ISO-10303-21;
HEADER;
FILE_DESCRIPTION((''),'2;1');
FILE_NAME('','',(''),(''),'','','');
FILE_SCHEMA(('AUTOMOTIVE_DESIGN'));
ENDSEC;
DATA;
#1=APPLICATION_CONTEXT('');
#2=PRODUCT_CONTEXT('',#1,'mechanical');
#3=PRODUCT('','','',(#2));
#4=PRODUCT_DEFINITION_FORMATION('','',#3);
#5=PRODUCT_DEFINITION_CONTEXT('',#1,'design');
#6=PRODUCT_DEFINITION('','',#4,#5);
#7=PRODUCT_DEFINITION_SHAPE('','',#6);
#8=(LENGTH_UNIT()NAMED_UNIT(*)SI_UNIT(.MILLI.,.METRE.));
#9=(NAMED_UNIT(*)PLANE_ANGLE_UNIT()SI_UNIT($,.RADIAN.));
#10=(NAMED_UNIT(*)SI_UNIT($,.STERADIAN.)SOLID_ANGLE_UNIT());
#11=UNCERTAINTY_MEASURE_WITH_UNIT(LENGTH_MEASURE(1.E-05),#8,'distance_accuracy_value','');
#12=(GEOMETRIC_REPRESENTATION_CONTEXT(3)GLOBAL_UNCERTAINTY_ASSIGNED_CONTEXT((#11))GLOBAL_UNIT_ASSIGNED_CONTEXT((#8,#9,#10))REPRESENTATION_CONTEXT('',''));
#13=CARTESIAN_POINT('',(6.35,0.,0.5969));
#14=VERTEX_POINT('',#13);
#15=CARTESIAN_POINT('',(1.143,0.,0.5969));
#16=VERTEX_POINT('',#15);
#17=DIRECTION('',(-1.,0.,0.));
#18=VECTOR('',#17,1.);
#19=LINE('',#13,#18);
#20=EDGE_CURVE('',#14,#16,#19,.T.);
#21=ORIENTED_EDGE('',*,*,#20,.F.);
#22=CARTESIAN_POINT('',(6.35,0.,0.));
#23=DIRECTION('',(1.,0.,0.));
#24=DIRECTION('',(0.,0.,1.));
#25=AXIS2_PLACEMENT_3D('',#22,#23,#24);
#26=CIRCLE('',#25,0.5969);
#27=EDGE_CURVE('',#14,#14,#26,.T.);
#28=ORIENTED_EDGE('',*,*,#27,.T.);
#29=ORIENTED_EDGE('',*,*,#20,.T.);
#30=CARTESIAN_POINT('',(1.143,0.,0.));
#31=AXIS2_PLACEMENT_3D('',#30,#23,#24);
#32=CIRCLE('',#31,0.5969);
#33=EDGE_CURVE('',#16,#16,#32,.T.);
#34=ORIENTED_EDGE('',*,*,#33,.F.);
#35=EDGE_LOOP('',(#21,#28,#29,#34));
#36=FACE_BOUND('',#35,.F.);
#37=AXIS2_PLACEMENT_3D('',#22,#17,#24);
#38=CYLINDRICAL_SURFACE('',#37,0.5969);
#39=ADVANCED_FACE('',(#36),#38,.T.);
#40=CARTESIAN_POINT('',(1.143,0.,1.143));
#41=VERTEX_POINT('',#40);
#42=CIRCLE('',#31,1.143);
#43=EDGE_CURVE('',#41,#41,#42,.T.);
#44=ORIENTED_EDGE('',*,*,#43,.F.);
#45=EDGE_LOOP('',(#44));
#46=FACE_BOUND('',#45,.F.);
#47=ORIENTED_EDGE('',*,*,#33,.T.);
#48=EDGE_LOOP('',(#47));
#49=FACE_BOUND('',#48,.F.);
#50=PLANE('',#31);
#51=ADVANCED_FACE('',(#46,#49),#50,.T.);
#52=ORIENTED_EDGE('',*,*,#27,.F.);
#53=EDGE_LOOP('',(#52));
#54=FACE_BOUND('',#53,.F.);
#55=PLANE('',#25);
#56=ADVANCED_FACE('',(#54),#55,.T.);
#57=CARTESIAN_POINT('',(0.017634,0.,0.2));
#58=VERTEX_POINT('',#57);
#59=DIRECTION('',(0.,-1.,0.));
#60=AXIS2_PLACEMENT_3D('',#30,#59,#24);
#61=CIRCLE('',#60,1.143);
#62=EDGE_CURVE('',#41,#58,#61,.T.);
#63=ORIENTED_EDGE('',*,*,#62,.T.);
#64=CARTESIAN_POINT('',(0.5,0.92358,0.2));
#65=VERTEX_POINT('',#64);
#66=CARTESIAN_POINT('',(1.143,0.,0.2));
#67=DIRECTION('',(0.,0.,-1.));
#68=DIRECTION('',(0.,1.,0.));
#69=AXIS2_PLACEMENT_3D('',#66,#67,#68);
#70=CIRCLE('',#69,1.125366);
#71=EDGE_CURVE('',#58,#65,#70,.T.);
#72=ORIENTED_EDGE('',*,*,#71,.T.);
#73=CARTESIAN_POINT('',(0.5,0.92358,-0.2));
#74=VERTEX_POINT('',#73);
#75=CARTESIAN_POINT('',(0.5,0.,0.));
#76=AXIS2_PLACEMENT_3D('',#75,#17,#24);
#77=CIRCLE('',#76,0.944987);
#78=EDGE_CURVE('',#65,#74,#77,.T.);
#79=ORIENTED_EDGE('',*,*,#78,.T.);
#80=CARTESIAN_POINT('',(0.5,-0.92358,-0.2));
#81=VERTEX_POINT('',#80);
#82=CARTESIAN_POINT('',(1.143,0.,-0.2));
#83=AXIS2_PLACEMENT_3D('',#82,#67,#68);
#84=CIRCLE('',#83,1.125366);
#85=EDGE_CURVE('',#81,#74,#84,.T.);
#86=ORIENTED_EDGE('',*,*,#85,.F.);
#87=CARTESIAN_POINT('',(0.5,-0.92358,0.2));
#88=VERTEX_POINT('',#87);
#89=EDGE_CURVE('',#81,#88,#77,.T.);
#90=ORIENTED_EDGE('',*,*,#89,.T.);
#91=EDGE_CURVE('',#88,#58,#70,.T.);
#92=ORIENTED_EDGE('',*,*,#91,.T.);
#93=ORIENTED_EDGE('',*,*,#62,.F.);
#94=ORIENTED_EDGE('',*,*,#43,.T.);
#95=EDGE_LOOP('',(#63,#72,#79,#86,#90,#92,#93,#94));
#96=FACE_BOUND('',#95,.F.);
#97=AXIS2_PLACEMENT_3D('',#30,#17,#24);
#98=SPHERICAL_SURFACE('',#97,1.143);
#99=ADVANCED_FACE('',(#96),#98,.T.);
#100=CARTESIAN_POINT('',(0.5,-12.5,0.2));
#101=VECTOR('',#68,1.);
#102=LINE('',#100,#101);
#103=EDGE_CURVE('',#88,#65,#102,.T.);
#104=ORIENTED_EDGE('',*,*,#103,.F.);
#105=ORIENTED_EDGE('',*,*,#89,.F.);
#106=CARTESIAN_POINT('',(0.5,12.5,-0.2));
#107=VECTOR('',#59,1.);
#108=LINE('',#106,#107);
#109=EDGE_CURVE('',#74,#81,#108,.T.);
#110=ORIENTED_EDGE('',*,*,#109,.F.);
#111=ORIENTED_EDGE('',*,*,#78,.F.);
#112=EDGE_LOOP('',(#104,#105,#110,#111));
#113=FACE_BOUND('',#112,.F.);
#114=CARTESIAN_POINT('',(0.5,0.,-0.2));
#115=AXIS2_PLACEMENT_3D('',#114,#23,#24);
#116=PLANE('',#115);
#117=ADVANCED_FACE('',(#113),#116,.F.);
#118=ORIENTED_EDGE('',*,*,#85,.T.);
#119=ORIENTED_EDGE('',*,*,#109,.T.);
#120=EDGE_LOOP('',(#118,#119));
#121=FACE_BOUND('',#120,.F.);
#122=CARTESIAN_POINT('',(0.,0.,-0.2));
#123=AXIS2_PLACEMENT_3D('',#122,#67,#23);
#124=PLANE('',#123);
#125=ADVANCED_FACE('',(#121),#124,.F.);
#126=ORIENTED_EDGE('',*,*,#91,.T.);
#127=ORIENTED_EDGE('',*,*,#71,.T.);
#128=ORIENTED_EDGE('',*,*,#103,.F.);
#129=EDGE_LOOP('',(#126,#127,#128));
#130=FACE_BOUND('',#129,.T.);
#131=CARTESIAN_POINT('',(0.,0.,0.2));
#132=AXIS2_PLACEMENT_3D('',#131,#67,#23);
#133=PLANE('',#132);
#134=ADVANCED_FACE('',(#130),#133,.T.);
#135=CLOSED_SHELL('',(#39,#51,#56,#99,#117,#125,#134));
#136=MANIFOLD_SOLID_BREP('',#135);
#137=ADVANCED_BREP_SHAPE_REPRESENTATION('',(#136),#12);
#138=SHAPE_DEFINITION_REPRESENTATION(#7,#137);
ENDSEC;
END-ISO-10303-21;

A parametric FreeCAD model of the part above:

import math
import FreeCAD as App
import Part
import Sketcher
from FreeCAD import Vector

doc = App.newDocument("Part")
body = doc.addObject("PartDesign::Body", "Body")

# Sketch on XZ plane
sketch1 = body.newObject("Sketcher::SketchObject", "Sketch")
sketch1.AttachmentSupport = (doc.getObject("XZ_Plane"), [""])
sketch1.MapMode = "FlatFace"
sketch1.addGeometry(Part.LineSegment(Vector(0, 0, 0), Vector(6.3, 0, 0)), False)
sketch1.addGeometry(Part.LineSegment(Vector(6.3, 0, 0), Vector(6.3, 0.6, 0)), False)
sketch1.addGeometry(Part.LineSegment(Vector(6.3, 0.6, 0), Vector(1.1, 0.6, 0)), False)
sketch1.addGeometry(Part.LineSegment(Vector(1.1, 0.6, 0), Vector(1.1, 1.1, 0)), False)
sketch1.addGeometry(Part.ArcOfCircle(Part.Circle(Vector(1.1, 0, 0), Vector(0, 0, 1), 1.1), math.radians(90), math.radians(180)), False)
sketch1.addConstraint(Sketcher.Constraint("Coincident", 0, 2, 1, 1))
sketch1.addConstraint(Sketcher.Constraint("Coincident", 1, 2, 2, 1))
sketch1.addConstraint(Sketcher.Constraint("Coincident", 2, 2, 3, 1))
sketch1.addConstraint(Sketcher.Constraint("Coincident", 3, 2, 4, 1))
sketch1.addConstraint(Sketcher.Constraint("Coincident", 4, 2, 0, 1))
sketch1.addConstraint(Sketcher.Constraint("Horizontal", 0))
sketch1.addConstraint(Sketcher.Constraint("Vertical", 1))
sketch1.addConstraint(Sketcher.Constraint("Horizontal", 2))
sketch1.addConstraint(Sketcher.Constraint("Vertical", 3))
sketch1.addConstraint(Sketcher.Constraint("Coincident", 4, 2, -1, 1))
sketch1.addConstraint(Sketcher.Constraint("PointOnObject", 4, 3, -1))
sketch1.addConstraint(Sketcher.Constraint("Vertical", 4, 3, 2, 2))
sketch1.addConstraint(Sketcher.Constraint("Radius", 4, 1.143))
sketch1.addConstraint(Sketcher.Constraint("DistanceX", 0, 1, 0, 2, 6.35))
sketch1.addConstraint(Sketcher.Constraint("DistanceY", 1, 1, 1, 2, 0.5969))
revolution = body.newObject("PartDesign::Revolution", "Revolution")
revolution.Profile = sketch1
revolution.ReferenceAxis = (sketch1, ["H_Axis"])
revolution.Angle = 360

# Sketch on XZ plane
sketch2 = body.newObject("Sketcher::SketchObject", "Sketch001")
sketch2.AttachmentSupport = (doc.getObject("XZ_Plane"), [""])
sketch2.MapMode = "FlatFace"
sketch2.addGeometry(Part.LineSegment(Vector(0, 0.2, 0), Vector(0, -0.2, 0)), False)
sketch2.addGeometry(Part.LineSegment(Vector(0, -0.2, 0), Vector(0.5, -0.2, 0)), False)
sketch2.addGeometry(Part.LineSegment(Vector(0.5, -0.2, 0), Vector(0.5, 0.2, 0)), False)
sketch2.addGeometry(Part.LineSegment(Vector(0.5, 0.2, 0), Vector(0, 0.2, 0)), False)
sketch2.addConstraint(Sketcher.Constraint("Coincident", 0, 2, 1, 1))
sketch2.addConstraint(Sketcher.Constraint("Coincident", 1, 2, 2, 1))
sketch2.addConstraint(Sketcher.Constraint("Coincident", 2, 2, 3, 1))
sketch2.addConstraint(Sketcher.Constraint("Coincident", 3, 2, 0, 1))
sketch2.addConstraint(Sketcher.Constraint("Vertical", 0))
sketch2.addConstraint(Sketcher.Constraint("Horizontal", 1))
sketch2.addConstraint(Sketcher.Constraint("Vertical", 2))
sketch2.addConstraint(Sketcher.Constraint("Horizontal", 3))
sketch2.addConstraint(Sketcher.Constraint("Symmetric", 0, 2, 3, 2, -1, 1))
sketch2.addConstraint(Sketcher.Constraint("DistanceX", 1, 1, 1, 2, 0.5))
sketch2.addConstraint(Sketcher.Constraint("DistanceY", 0, 2, 0, 1, 0.4))
pocket1 = body.newObject("PartDesign::Pocket", "Pocket")
pocket1.Profile = sketch2
pocket1.Length = 25
pocket1.Midplane = True

doc.recompute()
